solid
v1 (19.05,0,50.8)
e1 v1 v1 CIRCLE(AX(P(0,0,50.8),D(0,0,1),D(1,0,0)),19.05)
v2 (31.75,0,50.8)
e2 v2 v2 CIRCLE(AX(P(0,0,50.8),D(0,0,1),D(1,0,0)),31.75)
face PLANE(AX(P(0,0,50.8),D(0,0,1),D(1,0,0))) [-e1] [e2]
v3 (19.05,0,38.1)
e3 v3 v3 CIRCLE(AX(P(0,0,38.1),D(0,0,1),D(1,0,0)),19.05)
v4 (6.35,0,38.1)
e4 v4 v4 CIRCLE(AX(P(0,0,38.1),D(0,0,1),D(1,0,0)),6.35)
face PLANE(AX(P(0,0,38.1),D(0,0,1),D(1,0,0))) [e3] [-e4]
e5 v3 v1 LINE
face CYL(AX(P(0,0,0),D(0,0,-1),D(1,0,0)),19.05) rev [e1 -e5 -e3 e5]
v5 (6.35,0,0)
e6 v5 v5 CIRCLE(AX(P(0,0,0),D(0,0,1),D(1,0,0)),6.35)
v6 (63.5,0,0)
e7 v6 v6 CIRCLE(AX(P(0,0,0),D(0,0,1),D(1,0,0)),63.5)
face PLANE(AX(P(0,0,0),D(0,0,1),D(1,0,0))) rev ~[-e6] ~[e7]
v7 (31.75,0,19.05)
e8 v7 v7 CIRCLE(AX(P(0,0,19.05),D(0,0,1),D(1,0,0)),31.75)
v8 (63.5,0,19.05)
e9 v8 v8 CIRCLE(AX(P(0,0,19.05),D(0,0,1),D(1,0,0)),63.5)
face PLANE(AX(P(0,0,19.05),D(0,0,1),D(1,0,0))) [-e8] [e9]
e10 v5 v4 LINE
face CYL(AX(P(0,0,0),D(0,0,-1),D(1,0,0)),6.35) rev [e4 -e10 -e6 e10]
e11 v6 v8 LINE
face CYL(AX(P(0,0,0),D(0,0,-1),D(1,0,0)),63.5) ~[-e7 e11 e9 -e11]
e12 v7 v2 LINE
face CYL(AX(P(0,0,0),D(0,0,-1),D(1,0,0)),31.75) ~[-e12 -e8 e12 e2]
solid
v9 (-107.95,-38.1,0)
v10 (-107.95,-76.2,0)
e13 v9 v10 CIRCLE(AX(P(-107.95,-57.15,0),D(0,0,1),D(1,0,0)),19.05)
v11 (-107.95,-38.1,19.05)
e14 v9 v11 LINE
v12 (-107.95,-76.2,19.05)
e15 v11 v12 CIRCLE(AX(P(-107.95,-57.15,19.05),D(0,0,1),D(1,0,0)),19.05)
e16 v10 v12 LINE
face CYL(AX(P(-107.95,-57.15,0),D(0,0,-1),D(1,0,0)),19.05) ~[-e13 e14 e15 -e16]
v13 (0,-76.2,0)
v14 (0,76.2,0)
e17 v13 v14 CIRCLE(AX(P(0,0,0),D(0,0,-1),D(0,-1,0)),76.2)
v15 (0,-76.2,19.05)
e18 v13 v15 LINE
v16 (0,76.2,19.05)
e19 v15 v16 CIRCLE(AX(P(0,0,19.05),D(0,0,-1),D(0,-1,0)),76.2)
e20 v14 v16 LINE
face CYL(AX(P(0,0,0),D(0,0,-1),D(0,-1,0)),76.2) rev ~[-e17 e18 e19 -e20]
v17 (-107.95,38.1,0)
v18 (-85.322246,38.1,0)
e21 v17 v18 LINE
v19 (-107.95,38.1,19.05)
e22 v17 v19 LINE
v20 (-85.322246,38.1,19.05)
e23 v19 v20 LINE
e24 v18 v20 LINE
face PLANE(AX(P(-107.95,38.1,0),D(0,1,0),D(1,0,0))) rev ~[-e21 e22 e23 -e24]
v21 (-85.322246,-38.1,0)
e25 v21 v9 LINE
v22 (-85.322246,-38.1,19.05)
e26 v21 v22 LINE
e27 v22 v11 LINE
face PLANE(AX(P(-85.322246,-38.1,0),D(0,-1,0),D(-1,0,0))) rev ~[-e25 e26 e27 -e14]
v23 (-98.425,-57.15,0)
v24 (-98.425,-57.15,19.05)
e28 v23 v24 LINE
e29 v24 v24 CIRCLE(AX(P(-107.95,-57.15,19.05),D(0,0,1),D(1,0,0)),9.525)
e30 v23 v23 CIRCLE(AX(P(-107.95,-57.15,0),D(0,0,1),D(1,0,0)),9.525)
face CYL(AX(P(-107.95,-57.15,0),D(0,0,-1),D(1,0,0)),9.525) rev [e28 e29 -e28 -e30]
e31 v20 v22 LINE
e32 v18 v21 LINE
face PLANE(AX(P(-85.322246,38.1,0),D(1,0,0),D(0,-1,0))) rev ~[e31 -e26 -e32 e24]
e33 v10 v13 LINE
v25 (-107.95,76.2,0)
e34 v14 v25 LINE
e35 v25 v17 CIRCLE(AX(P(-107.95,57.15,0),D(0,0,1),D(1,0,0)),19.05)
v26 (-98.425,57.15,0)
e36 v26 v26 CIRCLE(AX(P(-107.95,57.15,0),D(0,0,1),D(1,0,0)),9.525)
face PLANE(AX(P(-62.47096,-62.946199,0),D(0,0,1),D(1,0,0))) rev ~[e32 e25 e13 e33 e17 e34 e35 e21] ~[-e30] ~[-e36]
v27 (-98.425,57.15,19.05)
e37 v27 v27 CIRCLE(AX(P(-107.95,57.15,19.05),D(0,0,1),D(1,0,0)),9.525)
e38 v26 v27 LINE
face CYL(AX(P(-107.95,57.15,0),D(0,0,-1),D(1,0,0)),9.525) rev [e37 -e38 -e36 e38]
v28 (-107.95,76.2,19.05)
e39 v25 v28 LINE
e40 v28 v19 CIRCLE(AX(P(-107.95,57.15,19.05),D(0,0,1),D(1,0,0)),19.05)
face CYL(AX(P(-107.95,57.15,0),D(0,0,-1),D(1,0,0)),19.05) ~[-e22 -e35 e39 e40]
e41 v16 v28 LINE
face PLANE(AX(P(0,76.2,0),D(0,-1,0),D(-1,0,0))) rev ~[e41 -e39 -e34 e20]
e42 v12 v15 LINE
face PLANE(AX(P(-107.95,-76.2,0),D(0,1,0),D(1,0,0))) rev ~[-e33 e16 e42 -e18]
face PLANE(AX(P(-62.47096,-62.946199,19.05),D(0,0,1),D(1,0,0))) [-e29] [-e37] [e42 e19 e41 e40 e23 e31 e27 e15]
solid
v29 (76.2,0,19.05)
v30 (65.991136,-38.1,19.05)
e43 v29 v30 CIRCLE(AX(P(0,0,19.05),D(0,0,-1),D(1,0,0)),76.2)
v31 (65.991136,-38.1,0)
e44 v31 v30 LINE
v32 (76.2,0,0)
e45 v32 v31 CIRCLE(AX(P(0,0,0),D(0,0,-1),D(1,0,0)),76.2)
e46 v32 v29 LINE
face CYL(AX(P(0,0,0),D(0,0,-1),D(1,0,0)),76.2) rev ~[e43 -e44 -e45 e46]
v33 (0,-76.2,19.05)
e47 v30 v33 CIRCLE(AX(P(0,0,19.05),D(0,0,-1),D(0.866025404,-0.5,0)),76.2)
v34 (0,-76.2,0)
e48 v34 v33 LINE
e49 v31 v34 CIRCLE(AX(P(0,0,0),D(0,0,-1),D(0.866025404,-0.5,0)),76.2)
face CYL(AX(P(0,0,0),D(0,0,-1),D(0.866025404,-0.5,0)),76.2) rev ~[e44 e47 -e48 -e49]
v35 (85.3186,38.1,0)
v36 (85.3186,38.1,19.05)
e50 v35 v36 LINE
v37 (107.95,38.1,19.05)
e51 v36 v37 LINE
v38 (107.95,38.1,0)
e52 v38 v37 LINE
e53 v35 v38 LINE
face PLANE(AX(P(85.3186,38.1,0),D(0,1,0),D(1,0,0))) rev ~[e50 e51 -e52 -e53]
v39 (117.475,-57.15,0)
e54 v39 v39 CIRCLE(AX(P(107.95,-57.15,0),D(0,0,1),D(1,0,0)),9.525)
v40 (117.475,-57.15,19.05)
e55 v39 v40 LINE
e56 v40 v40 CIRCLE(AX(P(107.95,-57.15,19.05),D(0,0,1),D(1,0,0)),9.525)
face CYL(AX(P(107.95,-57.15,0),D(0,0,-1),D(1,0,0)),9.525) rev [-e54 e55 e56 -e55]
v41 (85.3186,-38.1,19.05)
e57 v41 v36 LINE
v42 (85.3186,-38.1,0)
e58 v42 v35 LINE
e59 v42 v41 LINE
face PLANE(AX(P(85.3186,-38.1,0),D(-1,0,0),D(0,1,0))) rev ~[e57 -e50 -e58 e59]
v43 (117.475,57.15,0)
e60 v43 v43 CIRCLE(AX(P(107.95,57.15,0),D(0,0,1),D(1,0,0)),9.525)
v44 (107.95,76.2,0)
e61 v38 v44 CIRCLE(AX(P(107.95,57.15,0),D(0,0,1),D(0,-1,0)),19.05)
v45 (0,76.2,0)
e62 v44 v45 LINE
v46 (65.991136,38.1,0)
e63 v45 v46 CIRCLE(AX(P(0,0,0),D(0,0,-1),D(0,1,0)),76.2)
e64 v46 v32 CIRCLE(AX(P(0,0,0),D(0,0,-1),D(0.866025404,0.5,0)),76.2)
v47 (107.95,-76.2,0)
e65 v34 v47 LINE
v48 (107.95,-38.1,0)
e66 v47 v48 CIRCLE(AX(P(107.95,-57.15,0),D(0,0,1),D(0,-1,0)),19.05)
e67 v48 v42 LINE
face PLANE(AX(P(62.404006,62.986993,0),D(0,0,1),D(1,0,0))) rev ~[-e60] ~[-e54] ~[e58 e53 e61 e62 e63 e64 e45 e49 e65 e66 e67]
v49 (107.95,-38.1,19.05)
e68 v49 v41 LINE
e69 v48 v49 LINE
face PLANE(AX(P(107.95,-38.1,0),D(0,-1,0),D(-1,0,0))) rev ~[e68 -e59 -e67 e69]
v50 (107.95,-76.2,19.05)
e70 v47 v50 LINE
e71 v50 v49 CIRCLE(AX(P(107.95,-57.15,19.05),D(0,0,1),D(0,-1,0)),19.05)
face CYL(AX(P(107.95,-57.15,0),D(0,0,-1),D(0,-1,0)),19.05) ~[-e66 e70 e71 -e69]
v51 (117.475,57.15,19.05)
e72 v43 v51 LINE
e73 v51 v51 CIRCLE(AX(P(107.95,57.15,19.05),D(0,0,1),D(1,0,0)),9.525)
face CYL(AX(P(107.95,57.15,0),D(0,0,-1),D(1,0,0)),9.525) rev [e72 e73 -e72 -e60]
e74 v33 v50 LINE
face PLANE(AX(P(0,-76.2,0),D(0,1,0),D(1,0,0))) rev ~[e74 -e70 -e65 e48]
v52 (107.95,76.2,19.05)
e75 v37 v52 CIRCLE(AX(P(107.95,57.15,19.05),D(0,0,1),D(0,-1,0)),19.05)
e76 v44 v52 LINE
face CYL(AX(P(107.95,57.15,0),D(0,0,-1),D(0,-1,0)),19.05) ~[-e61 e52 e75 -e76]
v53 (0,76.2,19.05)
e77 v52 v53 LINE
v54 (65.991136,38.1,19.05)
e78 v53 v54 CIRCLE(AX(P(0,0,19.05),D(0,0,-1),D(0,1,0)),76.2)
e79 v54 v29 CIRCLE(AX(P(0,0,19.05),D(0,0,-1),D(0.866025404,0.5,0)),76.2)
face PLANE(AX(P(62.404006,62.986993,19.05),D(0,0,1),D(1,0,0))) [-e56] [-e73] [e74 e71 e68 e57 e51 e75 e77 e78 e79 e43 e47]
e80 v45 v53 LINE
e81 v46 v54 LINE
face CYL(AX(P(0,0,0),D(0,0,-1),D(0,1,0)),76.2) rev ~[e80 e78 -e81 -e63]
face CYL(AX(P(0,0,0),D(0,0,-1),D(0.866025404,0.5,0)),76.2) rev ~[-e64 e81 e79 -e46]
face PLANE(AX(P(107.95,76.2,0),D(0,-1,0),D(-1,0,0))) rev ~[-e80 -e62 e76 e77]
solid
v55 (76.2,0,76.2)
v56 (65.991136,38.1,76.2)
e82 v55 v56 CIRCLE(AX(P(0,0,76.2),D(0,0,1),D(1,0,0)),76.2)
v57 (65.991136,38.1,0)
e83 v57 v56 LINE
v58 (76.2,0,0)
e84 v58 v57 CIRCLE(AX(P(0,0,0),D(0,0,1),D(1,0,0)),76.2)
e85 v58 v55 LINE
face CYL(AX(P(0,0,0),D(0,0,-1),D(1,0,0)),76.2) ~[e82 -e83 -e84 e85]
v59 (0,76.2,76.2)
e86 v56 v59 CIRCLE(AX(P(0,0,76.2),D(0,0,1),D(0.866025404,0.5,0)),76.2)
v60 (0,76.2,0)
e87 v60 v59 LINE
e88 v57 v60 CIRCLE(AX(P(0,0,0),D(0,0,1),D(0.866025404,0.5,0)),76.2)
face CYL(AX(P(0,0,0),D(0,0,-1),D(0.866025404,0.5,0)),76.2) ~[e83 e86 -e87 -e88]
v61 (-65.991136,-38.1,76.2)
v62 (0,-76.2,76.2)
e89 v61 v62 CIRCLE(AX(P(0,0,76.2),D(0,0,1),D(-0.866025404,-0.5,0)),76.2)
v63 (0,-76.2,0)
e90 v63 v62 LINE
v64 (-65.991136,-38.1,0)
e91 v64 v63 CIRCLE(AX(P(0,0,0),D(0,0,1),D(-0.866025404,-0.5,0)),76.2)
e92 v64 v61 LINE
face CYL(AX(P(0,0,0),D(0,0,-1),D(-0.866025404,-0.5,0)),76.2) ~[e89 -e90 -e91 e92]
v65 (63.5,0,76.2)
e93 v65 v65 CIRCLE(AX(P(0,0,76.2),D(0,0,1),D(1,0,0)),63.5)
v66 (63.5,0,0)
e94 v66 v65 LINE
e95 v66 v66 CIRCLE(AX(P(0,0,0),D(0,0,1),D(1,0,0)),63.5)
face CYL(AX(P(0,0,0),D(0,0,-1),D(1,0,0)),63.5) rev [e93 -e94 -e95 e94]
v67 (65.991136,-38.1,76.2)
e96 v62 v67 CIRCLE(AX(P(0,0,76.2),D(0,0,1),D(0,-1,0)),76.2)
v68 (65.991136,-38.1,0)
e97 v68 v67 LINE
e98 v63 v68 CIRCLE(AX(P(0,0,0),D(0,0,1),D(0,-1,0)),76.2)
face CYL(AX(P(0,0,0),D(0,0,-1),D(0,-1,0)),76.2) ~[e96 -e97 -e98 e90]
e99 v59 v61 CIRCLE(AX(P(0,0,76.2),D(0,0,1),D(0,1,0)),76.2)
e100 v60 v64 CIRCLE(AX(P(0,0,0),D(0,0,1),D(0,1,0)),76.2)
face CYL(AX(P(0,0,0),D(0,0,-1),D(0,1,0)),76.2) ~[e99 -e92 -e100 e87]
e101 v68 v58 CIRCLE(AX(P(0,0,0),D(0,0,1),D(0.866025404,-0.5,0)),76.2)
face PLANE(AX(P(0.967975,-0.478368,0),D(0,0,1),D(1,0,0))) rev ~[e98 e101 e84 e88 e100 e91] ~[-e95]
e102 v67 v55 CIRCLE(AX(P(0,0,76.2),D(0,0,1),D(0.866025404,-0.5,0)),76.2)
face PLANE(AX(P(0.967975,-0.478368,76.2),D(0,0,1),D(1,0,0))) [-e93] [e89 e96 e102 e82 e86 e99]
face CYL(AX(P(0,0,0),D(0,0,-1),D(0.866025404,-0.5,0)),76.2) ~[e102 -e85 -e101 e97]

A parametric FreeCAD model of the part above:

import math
import FreeCAD as App
import Part
import Sketcher

V = App.Vector
Q = App.Units.Quantity

doc = App.newDocument("Part")
body = doc.addObject("PartDesign::Body", "Body")

# Sketch on XY plane
sketch1 = body.newObject("Sketcher::SketchObject", "Sketch")
sketch1.AttachmentSupport = (doc.getObject("XY_Plane"), [""])
sketch1.MapMode = "FlatFace"
sketch1.addGeometry([
    Part.LineSegment(V(-108, -76, 0), V(0, -76, 0)),  # 0
    Part.ArcOfCircle(Part.Circle(V(0, 0, 0), V(0, 0, 1), 76), math.radians(90), math.radians(270)),  # 1
    Part.LineSegment(V(0, 76, 0), V(-108, 76, 0)),  # 2
    Part.ArcOfCircle(Part.Circle(V(-108, 57, 0), V(0, 0, 1), 19), math.radians(90), math.radians(270)),  # 3
    Part.LineSegment(V(-108, 38, 0), V(-85, 38, 0)),  # 4
    Part.LineSegment(V(-85, 38, 0), V(-85, -38, 0)),  # 5
    Part.LineSegment(V(-85, -38, 0), V(-108, -38, 0)),  # 6
    Part.ArcOfCircle(Part.Circle(V(-108, -57, 0), V(0, 0, 1), 19), math.radians(90), math.radians(270)),  # 7
    Part.Circle(V(-108, -57, 0), V(0, 0, 1), 10),  # 8
    Part.Circle(V(-108, 57, 0), V(0, 0, 1), 10),  # 9
], False)
sketch1.addConstraint([
    Sketcher.Constraint("Tangent", 0, 2, 1, 2),
    Sketcher.Constraint("Tangent", 1, 1, 2, 1),
    Sketcher.Constraint("Tangent", 2, 2, 3, 1),
    Sketcher.Constraint("Tangent", 3, 2, 4, 1),
    Sketcher.Constraint("Coincident", 4, 2, 5, 1),
    Sketcher.Constraint("Coincident", 5, 2, 6, 1),
    Sketcher.Constraint("Tangent", 6, 2, 7, 1),
    Sketcher.Constraint("Tangent", 7, 2, 0, 1),
    Sketcher.Constraint("Horizontal", 0),
    Sketcher.Constraint("Horizontal", 2),
    Sketcher.Constraint("Horizontal", 4),
    Sketcher.Constraint("Vertical", 5),
    Sketcher.Constraint("Horizontal", 6),
    Sketcher.Constraint("Coincident", 1, 3, -1, 1),
    Sketcher.Constraint("Coincident", 8, 3, 7, 3),
    Sketcher.Constraint("Coincident", 9, 3, 3, 3),
    Sketcher.Constraint("Equal", 3, 7),
    Sketcher.Constraint("Equal", 8, 9),
    Sketcher.Constraint("Vertical", 3, 3, 7, 3),
    Sketcher.Constraint("Radius", 1, Q("3 in")),
    Sketcher.Constraint("Diameter", 8, Q("0.75 in")),
    Sketcher.Constraint("DistanceY", 5, 2, 5, 1, Q("3 in")),
    Sketcher.Constraint("DistanceX", 0, 1, 0, 2, Q("4.25 in")),
    Sketcher.Constraint("DistanceX", 4, 1, 4, 2, 22.627754),
])
pad1 = body.newObject("PartDesign::Pad", "Pad")
pad1.Profile = sketch1
pad1.Length = Q("0.75 in")
body2 = doc.addObject("PartDesign::Body", "Body001")

# Sketch on XY plane
sketch2 = body2.newObject("Sketcher::SketchObject", "Sketch001")
sketch2.AttachmentSupport = (doc.getObject("XY_Plane001"), [""])
sketch2.MapMode = "FlatFace"
sketch2.addGeometry([
    Part.LineSegment(V(108, 76, 0), V(0, 76, 0)),  # 0
    Part.ArcOfCircle(Part.Circle(V(0, 0, 0), V(0, 0, 1), 76), math.radians(30), math.radians(90)),  # 1
    Part.ArcOfCircle(Part.Circle(V(0, 0, 0), V(0, 0, 1), 76), math.radians(0), math.radians(30)),  # 2
    Part.ArcOfCircle(Part.Circle(V(0, 0, 0), V(0, 0, 1), 76), math.radians(-30), math.radians(0)),  # 3
    Part.ArcOfCircle(Part.Circle(V(0, 0, 0), V(0, 0, 1), 76), math.radians(-90), math.radians(-30)),  # 4
    Part.LineSegment(V(0, -76, 0), V(108, -76, 0)),  # 5
    Part.ArcOfCircle(Part.Circle(V(108, -57, 0), V(0, 0, 1), 19), math.radians(-90), math.radians(90)),  # 6
    Part.LineSegment(V(108, -38, 0), V(85, -38, 0)),  # 7
    Part.LineSegment(V(85, -38, 0), V(85, 38, 0)),  # 8
    Part.LineSegment(V(85, 38, 0), V(108, 38, 0)),  # 9
    Part.ArcOfCircle(Part.Circle(V(108, 57, 0), V(0, 0, 1), 19), math.radians(-90), math.radians(90)),  # 10
    Part.Circle(V(108, 57, 0), V(0, 0, 1), 10),  # 11
    Part.Circle(V(108, -57, 0), V(0, 0, 1), 10),  # 12
], False)
sketch2.addConstraint([
    Sketcher.Constraint("Tangent", 0, 2, 1, 2),
    Sketcher.Constraint("Tangent", 1, 1, 2, 2),
    Sketcher.Constraint("Tangent", 2, 1, 3, 2),
    Sketcher.Constraint("Tangent", 3, 1, 4, 2),
    Sketcher.Constraint("Tangent", 4, 1, 5, 1),
    Sketcher.Constraint("Tangent", 5, 2, 6, 1),
    Sketcher.Constraint("Tangent", 6, 2, 7, 1),
    Sketcher.Constraint("Coincident", 7, 2, 8, 1),
    Sketcher.Constraint("Coincident", 8, 2, 9, 1),
    Sketcher.Constraint("Tangent", 9, 2, 10, 1),
    Sketcher.Constraint("Tangent", 10, 2, 0, 1),
    Sketcher.Constraint("Horizontal", 0),
    Sketcher.Constraint("Horizontal", 5),
    Sketcher.Constraint("Horizontal", 7),
    Sketcher.Constraint("Vertical", 8),
    Sketcher.Constraint("Horizontal", 9),
    Sketcher.Constraint("Coincident", 1, 3, -1, 1),
    Sketcher.Constraint("Coincident", 3, 3, -1, 1),
    Sketcher.Constraint("Coincident", 11, 3, 10, 3),
    Sketcher.Constraint("Coincident", 12, 3, 6, 3),
    Sketcher.Constraint("Equal", 3, 4),
    Sketcher.Constraint("Equal", 6, 10),
    Sketcher.Constraint("Equal", 11, 12),
    Sketcher.Constraint("PointOnObject", 2, 1, -1),
    Sketcher.Constraint("Horizontal", 3, 1, 6, 2),
    Sketcher.Constraint("Horizontal", 1, 1, 8, 2),
    Sketcher.Constraint("Vertical", 6, 3, 10, 3),
    Sketcher.Constraint("Radius", 1, Q("3 in")),
    Sketcher.Constraint("Diameter", 11, Q("0.75 in")),
    Sketcher.Constraint("DistanceY", 8, 1, 8, 2, Q("3 in")),
    Sketcher.Constraint("DistanceX", 0, 2, 0, 1, Q("4.25 in")),
    Sketcher.Constraint("DistanceX", 7, 2, 7, 1, Q("0.891 in")),
])
pad2 = body2.newObject("PartDesign::Pad", "Pad001")
pad2.Profile = sketch2
pad2.Length = Q("0.75 in")
body3 = doc.addObject("PartDesign::Body", "Body002")

# Sketch on XY plane
sketch3 = body3.newObject("Sketcher::SketchObject", "Sketch002")
sketch3.AttachmentSupport = (doc.getObject("XY_Plane002"), [""])
sketch3.MapMode = "FlatFace"
sketch3.addGeometry([
    Part.Circle(V(0, 0, 0), V(0, 0, 1), 64),
    Part.Circle(V(0, 0, 0), V(0, 0, 1), 32),
], False)
sketch3.addConstraint([
    Sketcher.Constraint("Coincident", 0, 3, -1, 1),
    Sketcher.Constraint("Coincident", 1, 3, -1, 1),
    Sketcher.Constraint("Diameter", 0, Q("5 in")),
    Sketcher.Constraint("Diameter", 1, Q("2.5 in")),
])
pad3 = body3.newObject("PartDesign::Pad", "Pad002")
pad3.Profile = sketch3
pad3.Length = Q("0.75 in")

# Sketch on XY plane
sketch4 = body3.newObject("Sketcher::SketchObject", "Sketch003")
sketch4.AttachmentSupport = (doc.getObject("XY_Plane002"), [""])
sketch4.MapMode = "FlatFace"
sketch4.addGeometry([
    Part.Circle(V(0, 0, 0), V(0, 0, 1), 32),
    Part.Circle(V(0, 0, 0), V(0, 0, 1), 19),
], False)
sketch4.addConstraint([
    Sketcher.Constraint("Coincident", 0, 3, -1, 1),
    Sketcher.Constraint("Coincident", 1, 3, -1, 1),
    Sketcher.Constraint("Diameter", 0, Q("2.5 in")),
    Sketcher.Constraint("Diameter", 1, Q("1.5 in")),
])
pad4 = body3.newObject("PartDesign::Pad", "Pad003")
pad4.Profile = sketch4
pad4.Length = Q("2 in")

# Sketch on XY plane
sketch5 = body3.newObject("Sketcher::SketchObject", "Sketch004")
sketch5.AttachmentSupport = (doc.getObject("XY_Plane002"), [""])
sketch5.MapMode = "FlatFace"
sketch5.addGeometry([
    Part.Circle(V(0, 0, 0), V(0, 0, 1), 19),
    Part.Circle(V(0, 0, 0), V(0, 0, 1), 6),
], False)
sketch5.addConstraint([
    Sketcher.Constraint("Coincident", 0, 3, -1, 1),
    Sketcher.Constraint("Coincident", 1, 3, -1, 1),
    Sketcher.Constraint("Diameter", 0, Q("1.5 in")),
    Sketcher.Constraint("Diameter", 1, Q("0.5 in")),
])
pad5 = body3.newObject("PartDesign::Pad", "Pad004")
pad5.Profile = sketch5
pad5.Length = Q("1.5 in")
body4 = doc.addObject("PartDesign::Body", "Body003")

# Sketch on XY plane
sketch6 = body4.newObject("Sketcher::SketchObject", "Sketch005")
sketch6.AttachmentSupport = (doc.getObject("XY_Plane003"), [""])
sketch6.MapMode = "FlatFace"
sketch6.addGeometry([
    Part.ArcOfCircle(Part.Circle(V(0, 0, 0), V(0, 0, 1), 76), math.radians(-30), math.radians(0)),  # 0
    Part.ArcOfCircle(Part.Circle(V(0, 0, 0), V(0, 0, 1), 76), math.radians(0), math.radians(30)),  # 1
    Part.ArcOfCircle(Part.Circle(V(0, 0, 0), V(0, 0, 1), 76), math.radians(30), math.radians(90)),  # 2
    Part.ArcOfCircle(Part.Circle(V(0, 0, 0), V(0, 0, 1), 76), math.radians(90), math.radians(210)),  # 3
    Part.ArcOfCircle(Part.Circle(V(0, 0, 0), V(0, 0, 1), 76), math.radians(-150), math.radians(-90)),  # 4
    Part.ArcOfCircle(Part.Circle(V(0, 0, 0), V(0, 0, 1), 76), math.radians(-90), math.radians(-30)),  # 5
    Part.Circle(V(0, 0, 0), V(0, 0, 1), 64),  # 6
], False)
sketch6.addConstraint([
    Sketcher.Constraint("Tangent", 0, 2, 1, 1),
    Sketcher.Constraint("Tangent", 1, 2, 2, 1),
    Sketcher.Constraint("Tangent", 2, 2, 3, 1),
    Sketcher.Constraint("Tangent", 3, 2, 4, 1),
    Sketcher.Constraint("Tangent", 4, 2, 5, 1),
    Sketcher.Constraint("Tangent", 5, 2, 0, 1),
    Sketcher.Constraint("Coincident", 0, 3, -1, 1),
    Sketcher.Constraint("Coincident", 2, 3, -1, 1),
    Sketcher.Constraint("Coincident", 6, 3, -1, 1),
    Sketcher.Constraint("Equal", 2, 3),
    Sketcher.Constraint("PointOnObject", 0, 2, -1),
    Sketcher.Constraint("PointOnObject", 2, 2, -2),
    Sketcher.Constraint("PointOnObject", 4, 2, -2),
    Sketcher.Constraint("Horizontal", 3, 2, 5, 2),
    Sketcher.Constraint("Vertical", 1, 2, 5, 2),
    Sketcher.Constraint("Diameter", 6, Q("5 in")),
    Sketcher.Constraint("Radius", 0, Q("3 in")),
    Sketcher.Constraint("DistanceY", -1, 1, 1, 2, Q("1.5 in")),
])
pad6 = body4.newObject("PartDesign::Pad", "Pad005")
pad6.Profile = sketch6
pad6.Length = Q("3 in")

doc.recompute()
